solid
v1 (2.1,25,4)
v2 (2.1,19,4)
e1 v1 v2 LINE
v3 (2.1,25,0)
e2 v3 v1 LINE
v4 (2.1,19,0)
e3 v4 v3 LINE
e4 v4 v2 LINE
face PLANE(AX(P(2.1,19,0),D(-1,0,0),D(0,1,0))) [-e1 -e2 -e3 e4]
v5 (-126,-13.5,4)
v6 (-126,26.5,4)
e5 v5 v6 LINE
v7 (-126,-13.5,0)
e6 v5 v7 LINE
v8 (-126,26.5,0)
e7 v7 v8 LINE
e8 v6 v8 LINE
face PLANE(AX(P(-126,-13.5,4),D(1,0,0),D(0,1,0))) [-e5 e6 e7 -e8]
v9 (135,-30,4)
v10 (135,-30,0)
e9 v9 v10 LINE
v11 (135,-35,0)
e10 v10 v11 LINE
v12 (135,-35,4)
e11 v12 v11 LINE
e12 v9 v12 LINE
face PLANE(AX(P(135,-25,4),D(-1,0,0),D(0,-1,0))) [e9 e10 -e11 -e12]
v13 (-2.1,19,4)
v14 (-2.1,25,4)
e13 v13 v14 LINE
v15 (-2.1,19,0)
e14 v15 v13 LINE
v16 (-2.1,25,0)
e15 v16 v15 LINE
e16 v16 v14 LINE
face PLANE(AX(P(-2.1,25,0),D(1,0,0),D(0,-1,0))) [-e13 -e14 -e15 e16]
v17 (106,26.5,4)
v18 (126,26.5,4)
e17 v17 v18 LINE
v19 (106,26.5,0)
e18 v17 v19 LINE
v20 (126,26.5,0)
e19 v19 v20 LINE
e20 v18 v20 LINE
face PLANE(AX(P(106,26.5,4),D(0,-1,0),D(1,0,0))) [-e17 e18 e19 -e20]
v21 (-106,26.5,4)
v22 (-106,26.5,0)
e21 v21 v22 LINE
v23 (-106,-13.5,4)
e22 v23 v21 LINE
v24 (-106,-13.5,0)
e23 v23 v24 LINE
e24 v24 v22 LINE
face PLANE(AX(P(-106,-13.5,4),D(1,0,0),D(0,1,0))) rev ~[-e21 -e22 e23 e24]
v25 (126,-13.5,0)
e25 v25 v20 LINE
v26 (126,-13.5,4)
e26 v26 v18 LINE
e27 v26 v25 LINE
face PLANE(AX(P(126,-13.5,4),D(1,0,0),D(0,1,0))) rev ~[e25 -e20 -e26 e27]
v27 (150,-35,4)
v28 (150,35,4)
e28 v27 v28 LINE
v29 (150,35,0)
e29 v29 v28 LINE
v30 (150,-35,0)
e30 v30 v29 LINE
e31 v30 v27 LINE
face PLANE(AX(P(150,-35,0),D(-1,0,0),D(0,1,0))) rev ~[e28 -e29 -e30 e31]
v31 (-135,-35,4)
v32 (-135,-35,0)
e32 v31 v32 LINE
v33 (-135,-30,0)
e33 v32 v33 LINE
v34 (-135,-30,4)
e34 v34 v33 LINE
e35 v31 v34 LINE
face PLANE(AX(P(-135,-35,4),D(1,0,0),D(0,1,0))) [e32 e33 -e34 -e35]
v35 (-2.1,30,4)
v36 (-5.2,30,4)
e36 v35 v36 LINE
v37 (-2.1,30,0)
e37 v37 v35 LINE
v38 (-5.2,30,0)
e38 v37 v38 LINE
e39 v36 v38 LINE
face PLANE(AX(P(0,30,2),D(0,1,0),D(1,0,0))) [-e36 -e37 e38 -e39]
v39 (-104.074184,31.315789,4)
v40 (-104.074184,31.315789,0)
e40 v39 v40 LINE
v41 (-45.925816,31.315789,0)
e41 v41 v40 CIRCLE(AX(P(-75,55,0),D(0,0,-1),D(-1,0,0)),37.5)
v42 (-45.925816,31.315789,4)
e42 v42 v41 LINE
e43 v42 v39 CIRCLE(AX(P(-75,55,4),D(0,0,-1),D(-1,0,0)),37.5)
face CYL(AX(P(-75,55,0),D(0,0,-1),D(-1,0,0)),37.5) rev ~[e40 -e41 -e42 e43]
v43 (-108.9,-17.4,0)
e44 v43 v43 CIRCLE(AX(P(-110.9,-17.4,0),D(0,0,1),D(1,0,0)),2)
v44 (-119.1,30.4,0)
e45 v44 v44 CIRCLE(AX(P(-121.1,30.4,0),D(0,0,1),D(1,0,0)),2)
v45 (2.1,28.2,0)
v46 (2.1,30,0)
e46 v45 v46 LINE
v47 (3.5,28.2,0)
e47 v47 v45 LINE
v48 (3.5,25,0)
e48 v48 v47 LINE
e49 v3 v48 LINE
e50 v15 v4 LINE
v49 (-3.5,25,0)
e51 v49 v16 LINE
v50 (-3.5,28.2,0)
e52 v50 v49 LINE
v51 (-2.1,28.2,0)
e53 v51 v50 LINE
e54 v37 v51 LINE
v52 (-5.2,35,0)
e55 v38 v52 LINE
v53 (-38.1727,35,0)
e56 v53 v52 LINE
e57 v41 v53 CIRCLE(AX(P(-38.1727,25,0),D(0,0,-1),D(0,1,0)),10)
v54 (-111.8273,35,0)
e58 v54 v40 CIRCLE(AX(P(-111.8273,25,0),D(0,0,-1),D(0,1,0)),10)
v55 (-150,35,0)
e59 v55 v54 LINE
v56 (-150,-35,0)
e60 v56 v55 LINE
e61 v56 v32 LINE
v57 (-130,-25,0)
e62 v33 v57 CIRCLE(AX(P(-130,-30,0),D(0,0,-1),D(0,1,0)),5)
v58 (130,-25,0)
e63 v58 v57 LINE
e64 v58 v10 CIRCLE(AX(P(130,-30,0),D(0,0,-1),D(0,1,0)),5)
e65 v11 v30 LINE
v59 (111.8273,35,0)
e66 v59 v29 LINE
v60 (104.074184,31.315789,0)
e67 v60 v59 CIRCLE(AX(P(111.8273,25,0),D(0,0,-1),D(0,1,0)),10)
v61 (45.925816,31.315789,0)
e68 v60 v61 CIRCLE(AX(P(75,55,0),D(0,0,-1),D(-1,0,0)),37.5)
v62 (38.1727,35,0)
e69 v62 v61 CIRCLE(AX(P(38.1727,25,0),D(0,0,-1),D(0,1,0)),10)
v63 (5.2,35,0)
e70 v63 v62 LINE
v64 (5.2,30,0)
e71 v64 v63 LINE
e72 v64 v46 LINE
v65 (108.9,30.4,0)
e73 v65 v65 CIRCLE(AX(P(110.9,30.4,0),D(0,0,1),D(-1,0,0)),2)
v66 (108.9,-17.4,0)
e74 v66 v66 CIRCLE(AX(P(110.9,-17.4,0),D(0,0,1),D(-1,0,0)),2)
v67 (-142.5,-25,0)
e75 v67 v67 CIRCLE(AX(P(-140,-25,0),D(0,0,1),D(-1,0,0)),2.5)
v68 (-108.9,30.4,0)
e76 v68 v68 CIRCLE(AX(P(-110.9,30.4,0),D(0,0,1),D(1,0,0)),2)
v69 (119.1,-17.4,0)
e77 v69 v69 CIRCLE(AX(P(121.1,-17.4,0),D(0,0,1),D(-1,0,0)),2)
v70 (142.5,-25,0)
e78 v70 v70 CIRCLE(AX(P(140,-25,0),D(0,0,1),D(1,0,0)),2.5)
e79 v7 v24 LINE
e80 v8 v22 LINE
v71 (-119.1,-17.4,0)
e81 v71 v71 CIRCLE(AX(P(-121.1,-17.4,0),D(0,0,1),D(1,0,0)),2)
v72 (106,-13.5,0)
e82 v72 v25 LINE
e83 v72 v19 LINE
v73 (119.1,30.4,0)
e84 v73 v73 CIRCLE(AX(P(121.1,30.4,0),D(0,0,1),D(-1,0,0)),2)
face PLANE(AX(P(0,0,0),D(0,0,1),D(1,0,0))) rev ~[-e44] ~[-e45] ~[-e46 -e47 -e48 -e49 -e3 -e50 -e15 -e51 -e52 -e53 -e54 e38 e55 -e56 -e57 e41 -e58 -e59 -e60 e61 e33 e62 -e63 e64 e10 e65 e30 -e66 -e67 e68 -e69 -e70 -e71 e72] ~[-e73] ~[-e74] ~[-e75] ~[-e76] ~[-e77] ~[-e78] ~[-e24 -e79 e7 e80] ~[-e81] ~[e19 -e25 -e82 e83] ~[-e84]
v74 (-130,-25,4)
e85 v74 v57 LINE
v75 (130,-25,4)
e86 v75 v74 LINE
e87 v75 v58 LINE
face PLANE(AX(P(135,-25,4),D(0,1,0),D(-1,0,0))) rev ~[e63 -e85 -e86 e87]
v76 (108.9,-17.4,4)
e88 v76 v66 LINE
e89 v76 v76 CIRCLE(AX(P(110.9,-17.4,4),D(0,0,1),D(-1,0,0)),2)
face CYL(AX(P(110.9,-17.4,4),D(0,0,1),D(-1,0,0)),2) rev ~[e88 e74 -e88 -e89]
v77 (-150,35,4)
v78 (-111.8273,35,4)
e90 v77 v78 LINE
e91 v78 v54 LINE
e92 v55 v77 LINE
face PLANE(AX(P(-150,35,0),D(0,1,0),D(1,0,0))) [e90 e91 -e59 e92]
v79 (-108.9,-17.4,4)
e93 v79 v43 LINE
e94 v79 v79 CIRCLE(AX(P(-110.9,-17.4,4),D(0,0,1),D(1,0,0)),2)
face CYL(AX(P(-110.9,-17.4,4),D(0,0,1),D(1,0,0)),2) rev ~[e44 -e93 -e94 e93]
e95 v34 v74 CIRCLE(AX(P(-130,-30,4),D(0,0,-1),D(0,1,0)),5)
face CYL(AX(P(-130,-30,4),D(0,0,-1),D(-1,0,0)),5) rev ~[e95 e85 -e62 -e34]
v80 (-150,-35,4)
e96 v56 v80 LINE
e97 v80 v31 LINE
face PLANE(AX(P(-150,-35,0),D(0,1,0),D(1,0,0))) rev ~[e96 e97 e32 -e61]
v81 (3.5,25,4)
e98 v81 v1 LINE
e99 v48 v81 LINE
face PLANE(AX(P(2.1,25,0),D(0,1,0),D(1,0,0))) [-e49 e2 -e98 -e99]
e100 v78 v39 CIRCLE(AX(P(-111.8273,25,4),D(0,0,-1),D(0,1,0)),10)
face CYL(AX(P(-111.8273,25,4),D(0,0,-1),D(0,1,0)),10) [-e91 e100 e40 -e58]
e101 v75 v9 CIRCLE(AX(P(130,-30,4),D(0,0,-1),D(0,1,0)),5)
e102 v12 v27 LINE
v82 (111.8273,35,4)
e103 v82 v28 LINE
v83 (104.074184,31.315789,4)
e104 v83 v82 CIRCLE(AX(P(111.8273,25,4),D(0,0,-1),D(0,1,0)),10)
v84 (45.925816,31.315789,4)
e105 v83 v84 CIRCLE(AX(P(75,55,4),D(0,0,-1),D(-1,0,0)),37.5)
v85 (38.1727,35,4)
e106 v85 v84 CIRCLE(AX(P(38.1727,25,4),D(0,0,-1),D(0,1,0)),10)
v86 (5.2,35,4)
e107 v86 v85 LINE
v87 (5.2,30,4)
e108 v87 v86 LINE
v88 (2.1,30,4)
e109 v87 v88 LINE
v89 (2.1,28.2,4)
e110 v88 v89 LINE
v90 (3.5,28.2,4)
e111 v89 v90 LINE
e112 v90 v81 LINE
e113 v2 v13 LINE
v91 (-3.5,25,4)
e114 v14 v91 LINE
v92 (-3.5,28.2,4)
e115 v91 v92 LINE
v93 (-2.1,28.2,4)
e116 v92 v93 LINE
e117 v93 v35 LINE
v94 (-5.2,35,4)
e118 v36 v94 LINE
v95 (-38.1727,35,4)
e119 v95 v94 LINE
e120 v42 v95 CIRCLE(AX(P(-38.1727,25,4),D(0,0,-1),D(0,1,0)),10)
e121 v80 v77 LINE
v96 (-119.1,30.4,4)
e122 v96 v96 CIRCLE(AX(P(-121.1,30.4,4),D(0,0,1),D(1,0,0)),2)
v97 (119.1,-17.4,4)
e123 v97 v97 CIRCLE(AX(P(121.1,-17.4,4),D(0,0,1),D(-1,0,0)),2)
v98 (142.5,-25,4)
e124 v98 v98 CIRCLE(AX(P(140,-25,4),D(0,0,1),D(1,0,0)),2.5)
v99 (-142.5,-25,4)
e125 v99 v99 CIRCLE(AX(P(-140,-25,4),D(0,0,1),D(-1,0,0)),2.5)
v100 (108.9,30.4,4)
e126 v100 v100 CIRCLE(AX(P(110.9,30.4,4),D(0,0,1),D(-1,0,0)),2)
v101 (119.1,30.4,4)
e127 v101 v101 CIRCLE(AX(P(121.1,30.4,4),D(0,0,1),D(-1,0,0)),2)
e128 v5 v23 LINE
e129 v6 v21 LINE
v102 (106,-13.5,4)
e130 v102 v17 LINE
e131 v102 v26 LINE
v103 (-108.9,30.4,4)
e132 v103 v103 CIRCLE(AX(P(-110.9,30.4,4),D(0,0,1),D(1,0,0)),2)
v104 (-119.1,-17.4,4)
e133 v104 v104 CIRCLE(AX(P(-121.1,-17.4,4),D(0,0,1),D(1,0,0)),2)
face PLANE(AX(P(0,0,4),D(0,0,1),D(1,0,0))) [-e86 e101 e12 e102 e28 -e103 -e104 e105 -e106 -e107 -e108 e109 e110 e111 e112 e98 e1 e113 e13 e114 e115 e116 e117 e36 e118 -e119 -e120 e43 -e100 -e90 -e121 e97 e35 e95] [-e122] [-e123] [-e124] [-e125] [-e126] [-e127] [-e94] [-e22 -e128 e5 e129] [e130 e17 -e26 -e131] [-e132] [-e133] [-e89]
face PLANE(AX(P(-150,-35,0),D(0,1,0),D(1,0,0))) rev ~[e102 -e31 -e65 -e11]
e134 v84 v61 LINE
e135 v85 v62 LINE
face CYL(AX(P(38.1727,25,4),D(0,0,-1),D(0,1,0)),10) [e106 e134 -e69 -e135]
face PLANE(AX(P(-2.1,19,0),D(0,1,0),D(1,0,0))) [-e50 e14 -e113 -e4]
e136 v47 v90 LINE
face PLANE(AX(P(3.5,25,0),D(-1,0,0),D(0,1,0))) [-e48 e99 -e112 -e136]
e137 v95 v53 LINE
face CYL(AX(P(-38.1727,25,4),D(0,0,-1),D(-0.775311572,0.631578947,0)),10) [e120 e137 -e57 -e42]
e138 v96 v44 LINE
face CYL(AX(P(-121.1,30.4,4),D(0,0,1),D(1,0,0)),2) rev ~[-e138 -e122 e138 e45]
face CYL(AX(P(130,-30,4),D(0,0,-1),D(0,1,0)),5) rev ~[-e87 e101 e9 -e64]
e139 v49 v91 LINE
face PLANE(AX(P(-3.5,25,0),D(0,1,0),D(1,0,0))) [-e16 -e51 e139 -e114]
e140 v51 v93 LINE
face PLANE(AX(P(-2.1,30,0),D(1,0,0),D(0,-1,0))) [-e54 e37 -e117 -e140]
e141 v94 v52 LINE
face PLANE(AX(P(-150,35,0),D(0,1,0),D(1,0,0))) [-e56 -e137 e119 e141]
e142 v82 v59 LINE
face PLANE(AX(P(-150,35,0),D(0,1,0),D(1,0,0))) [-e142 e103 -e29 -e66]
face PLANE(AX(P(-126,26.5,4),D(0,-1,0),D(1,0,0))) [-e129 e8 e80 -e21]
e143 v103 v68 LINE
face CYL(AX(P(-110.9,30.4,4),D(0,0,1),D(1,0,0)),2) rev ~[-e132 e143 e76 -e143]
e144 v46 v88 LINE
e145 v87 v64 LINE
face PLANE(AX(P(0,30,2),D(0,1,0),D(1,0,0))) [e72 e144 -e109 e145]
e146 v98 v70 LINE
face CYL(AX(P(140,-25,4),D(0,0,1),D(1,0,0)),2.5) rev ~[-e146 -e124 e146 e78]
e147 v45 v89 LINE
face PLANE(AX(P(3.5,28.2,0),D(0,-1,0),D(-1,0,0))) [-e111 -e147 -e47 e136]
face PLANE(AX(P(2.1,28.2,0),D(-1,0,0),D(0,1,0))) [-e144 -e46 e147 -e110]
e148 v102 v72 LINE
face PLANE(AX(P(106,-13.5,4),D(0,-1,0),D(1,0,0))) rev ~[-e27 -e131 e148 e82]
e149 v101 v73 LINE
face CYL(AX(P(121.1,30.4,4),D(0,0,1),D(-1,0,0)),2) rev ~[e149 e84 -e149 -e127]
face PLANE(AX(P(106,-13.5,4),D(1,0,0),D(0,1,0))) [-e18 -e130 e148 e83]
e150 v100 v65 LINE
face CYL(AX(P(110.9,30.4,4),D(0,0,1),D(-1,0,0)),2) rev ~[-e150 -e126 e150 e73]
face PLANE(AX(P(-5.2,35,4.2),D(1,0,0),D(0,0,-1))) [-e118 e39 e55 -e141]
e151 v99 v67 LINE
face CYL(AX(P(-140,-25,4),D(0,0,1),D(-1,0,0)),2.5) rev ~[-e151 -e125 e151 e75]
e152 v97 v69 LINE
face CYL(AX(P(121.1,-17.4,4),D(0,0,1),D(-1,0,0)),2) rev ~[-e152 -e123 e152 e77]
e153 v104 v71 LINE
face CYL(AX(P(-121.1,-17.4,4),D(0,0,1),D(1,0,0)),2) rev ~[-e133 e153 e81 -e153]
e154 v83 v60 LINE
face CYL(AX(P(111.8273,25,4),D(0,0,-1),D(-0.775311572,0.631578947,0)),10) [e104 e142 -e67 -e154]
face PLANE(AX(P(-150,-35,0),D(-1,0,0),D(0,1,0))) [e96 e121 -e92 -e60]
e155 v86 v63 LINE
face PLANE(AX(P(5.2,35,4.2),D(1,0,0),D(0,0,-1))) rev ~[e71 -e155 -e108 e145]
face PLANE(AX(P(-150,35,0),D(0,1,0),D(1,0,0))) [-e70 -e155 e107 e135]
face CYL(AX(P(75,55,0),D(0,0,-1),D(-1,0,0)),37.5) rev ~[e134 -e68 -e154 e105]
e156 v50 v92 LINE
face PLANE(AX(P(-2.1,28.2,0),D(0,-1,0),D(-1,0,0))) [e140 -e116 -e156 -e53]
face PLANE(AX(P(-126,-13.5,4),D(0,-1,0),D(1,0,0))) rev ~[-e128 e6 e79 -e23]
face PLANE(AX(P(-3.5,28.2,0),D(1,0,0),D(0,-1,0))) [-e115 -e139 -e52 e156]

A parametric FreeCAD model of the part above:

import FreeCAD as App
import Part
import Sketcher

V = App.Vector


def edges_at(feature, points):
    """Names of the edges that pass closest to the given points."""
    edges = feature.Shape.Edges
    near = lambda p: min(range(len(edges)), key=lambda i: edges[i].distToShape(Part.Vertex(*p))[0])
    return sorted({f"Edge{near(p) + 1}" for p in points})


def add_polygon(sketch, points):
    """Adds a closed chain of lines whose ends are joined by coincident constraints."""
    first, n = sketch.GeometryCount, len(points)
    for a, b in zip(points, points[1:] + points[:1]):
        sketch.addGeometry(Part.LineSegment(App.Vector(*a, 0), App.Vector(*b, 0)), False)
    for i in range(n):
        sketch.addConstraint(Sketcher.Constraint("Coincident", first + i, 2, first + (i + 1) % n, 1))

doc = App.newDocument("Part")
body = doc.addObject("PartDesign::Body", "Body")

sketch1 = body.newObject("Sketcher::SketchObject", "Sketch")
sketch1.AttachmentSupport = (doc.getObject("XY_Plane"), [""])
sketch1.MapMode = "FlatFace"
add_polygon(sketch1, [(-150, 35), (-150, -35), (150, -35), (150, 35)])
sketch1.addConstraint([
    Sketcher.Constraint("Vertical", 0),
    Sketcher.Constraint("Horizontal", 1),
    Sketcher.Constraint("Vertical", 2),
    Sketcher.Constraint("Horizontal", 3),
    Sketcher.Constraint("Symmetric", 0, 2, 2, 2, -1, 1),
    Sketcher.Constraint("DistanceX", 1, 1, 1, 2, 300.0),
    Sketcher.Constraint("DistanceY", 0, 2, 0, 1, 70.0),
])
pad1 = body.newObject("PartDesign::Pad", "Pad")
pad1.Profile = sketch1
pad1.Length = 4

sketch2 = body.newObject("Sketcher::SketchObject", "Sketch001")
sketch2.AttachmentSupport = (doc.getObject("XY_Plane"), [""])
sketch2.MapMode = "FlatFace"
sketch2.AttachmentOffset = App.Placement(V(0, 0, 4), App.Rotation())
sketch2.addGeometry(Part.Circle(V(140, -25, 0), V(0, 0, 1), 2.5), False)
sketch2.addGeometry(Part.Circle(V(-140, -25, 0), V(0, 0, 1), 2.5), False)
add_polygon(sketch2, [(135, -25), (-135, -25), (-135, -35), (135, -35)])
sketch2.addConstraint([
    Sketcher.Constraint("Horizontal", 2),
    Sketcher.Constraint("Vertical", 3),
    Sketcher.Constraint("Horizontal", 4),
    Sketcher.Constraint("Vertical", 5),
    Sketcher.Constraint("Equal", 0, 1),
    Sketcher.Constraint("Symmetric", 0, 3, 1, 3, -2),
    Sketcher.Constraint("Horizontal", 1, 3, 2, 2),
    Sketcher.Constraint("Diameter", 0, 5.0),
    Sketcher.Constraint("DistanceX", 2, 2, 2, 1, 270.0),
    Sketcher.Constraint("DistanceY", 3, 2, 3, 1, 10.0),
    Sketcher.Constraint("DistanceX", -1, 1, 0, 3, 140.0),
    Sketcher.Constraint("DistanceY", 0, 3, -1, 1, 25.0),
    Sketcher.Constraint("DistanceX", 2, 2, -1, 1, 135.0),
])
pocket1 = body.newObject("PartDesign::Pocket", "Pocket")
pocket1.Profile = sketch2
pocket1.Type = "ThroughAll"

sketch3 = body.newObject("Sketcher::SketchObject", "Sketch002")
sketch3.AttachmentSupport = (doc.getObject("XY_Plane"), [""])
sketch3.MapMode = "FlatFace"
sketch3.addGeometry([
    Part.Circle(V(-75, 55, 0), V(0, 0, 1), 37.5),
    Part.Circle(V(75, 55, 0), V(0, 0, 1), 37.5),
], False)
sketch3.addConstraint([
    Sketcher.Constraint("Equal", 0, 1),
    Sketcher.Constraint("Symmetric", 0, 3, 1, 3, -2),
    Sketcher.Constraint("Diameter", 0, 75.0),
    Sketcher.Constraint("DistanceX", 0, 3, -1, 1, 75.0),
    Sketcher.Constraint("DistanceY", -1, 1, 0, 3, 55.0),
])
pocket2 = body.newObject("PartDesign::Pocket", "Pocket001")
pocket2.Profile = sketch3
pocket2.Type = "ThroughAll"
pocket2.Reversed = True
doc.recompute()

fillet = body.newObject("PartDesign::Fillet", "Fillet")
fillet.Base = (pocket2, edges_at(pocket2, [
    (-106.721, 35, 2),
    (-43.279, 35, 2),
    (43.279, 35, 2),
    (106.721, 35, 2),
]))
fillet.Radius = 10

sketch4 = body.newObject("Sketcher::SketchObject", "Sketch003")
sketch4.AttachmentSupport = (doc.getObject("XY_Plane"), [""])
sketch4.MapMode = "FlatFace"
sketch4.AttachmentOffset = App.Placement(V(0, 0, 4), App.Rotation())
sketch4.addGeometry(Part.Circle(V(-110.9, 30.4, 0), V(0, 0, 1), 2), False)
sketch4.addGeometry(Part.Circle(V(-121.1, 30.4, 0), V(0, 0, 1), 2), False)
sketch4.addGeometry(Part.Circle(V(-110.9, -17.4, 0), V(0, 0, 1), 2), False)
sketch4.addGeometry(Part.Circle(V(-121.1, -17.4, 0), V(0, 0, 1), 2), False)
sketch4.addGeometry(Part.Circle(V(121.1, -17.4, 0), V(0, 0, 1), 2), False)
sketch4.addGeometry(Part.Circle(V(110.9, -17.4, 0), V(0, 0, 1), 2), False)
sketch4.addGeometry(Part.Circle(V(121.1, 30.4, 0), V(0, 0, 1), 2), False)
sketch4.addGeometry(Part.Circle(V(110.9, 30.4, 0), V(0, 0, 1), 2), False)
add_polygon(sketch4, [(-126, 26.5), (-126, -13.5), (-106, -13.5), (-106, 26.5)])
add_polygon(sketch4, [(106, 26.5), (106, -13.5), (126, -13.5), (126, 26.5)])
sketch4.addConstraint([
    Sketcher.Constraint("Vertical", 8),
    Sketcher.Constraint("Horizontal", 9),
    Sketcher.Constraint("Vertical", 10),
    Sketcher.Constraint("Horizontal", 11),
    Sketcher.Constraint("Vertical", 12),
    Sketcher.Constraint("Horizontal", 13),
    Sketcher.Constraint("Vertical", 14),
    Sketcher.Constraint("Horizontal", 15),
    Sketcher.Constraint("Equal", 0, 1),
    Sketcher.Constraint("Equal", 1, 2),
    Sketcher.Constraint("Equal", 2, 3),
    Sketcher.Constraint("Equal", 3, 4),
    Sketcher.Constraint("Equal", 4, 5),
    Sketcher.Constraint("Equal", 5, 6),
    Sketcher.Constraint("Equal", 6, 7),
    Sketcher.Constraint("Symmetric", 3, 3, 4, 3, -2),
    Sketcher.Constraint("Symmetric", 2, 3, 5, 3, -2),
    Sketcher.Constraint("Symmetric", 1, 3, 6, 3, -2),
    Sketcher.Constraint("Symmetric", 0, 3, 7, 3, -2),
    Sketcher.Constraint("Symmetric", 9, 2, 12, 2, -2),
    Sketcher.Constraint("Symmetric", 11, 2, 14, 2, -2),
    Sketcher.Constraint("Horizontal", 0, 3, 1, 3),
    Sketcher.Constraint("Horizontal", 2, 3, 3, 3),
    Sketcher.Constraint("Vertical", 0, 3, 2, 3),
    Sketcher.Constraint("Vertical", 1, 3, 3, 3),
    Sketcher.Constraint("Diameter", 0, 4.0),
    Sketcher.Constraint("DistanceX", 9, 1, 9, 2, 20.0),
    Sketcher.Constraint("DistanceY", 8, 2, 8, 1, 40.0),
    Sketcher.Constraint("DistanceX", 8, 2, -1, 1, 126.0),
    Sketcher.Constraint("DistanceX", 2, 3, 4, 3, 232.0),
    Sketcher.Constraint("DistanceX", 0, 3, -1, 1, 110.9),
    Sketcher.Constraint("DistanceY", -1, 1, 0, 3, 30.4),
    Sketcher.Constraint("DistanceY", 2, 3, -1, 1, 17.4),
    Sketcher.Constraint("DistanceY", 8, 2, -1, 1, 13.5),
])
pocket3 = body.newObject("PartDesign::Pocket", "Pocket002")
pocket3.Profile = sketch4
pocket3.Type = "ThroughAll"
doc.recompute()

fillet2 = body.newObject("PartDesign::Fillet", "Fillet001")
fillet2.Base = (pocket3, edges_at(pocket3, [(-135, -25, 2), (135, -25, 2)]))
fillet2.Radius = 5

sketch5 = body.newObject("Sketcher::SketchObject", "Sketch004")
sketch5.AttachmentSupport = (doc.getObject("XZ_Plane"), [""])
sketch5.MapMode = "FlatFace"
sketch5.AttachmentOffset = App.Placement(V(0, 0, -35), App.Rotation())
add_polygon(sketch5, [(-5.2, -0.2), (-5.2, 4.2), (5.2, 4.2), (5.2, -0.2)])
sketch5.addConstraint([
    Sketcher.Constraint("Vertical", 0),
    Sketcher.Constraint("Horizontal", 1),
    Sketcher.Constraint("Vertical", 2),
    Sketcher.Constraint("Horizontal", 3),
    Sketcher.Constraint("DistanceX", 1, 1, 1, 2, 10.4),
    Sketcher.Constraint("DistanceY", 0, 1, 0, 2, 4.4),
    Sketcher.Constraint("DistanceX", 0, 2, -1, 1, 5.2),
    Sketcher.Constraint("DistanceY", -1, 1, 0, 2, 4.2),
])
pocket4 = body.newObject("PartDesign::Pocket", "Pocket003")
pocket4.Profile = sketch5
pocket4.Length = 5
pocket4.Reversed = True

sketch6 = body.newObject("Sketcher::SketchObject", "Sketch005")
sketch6.AttachmentSupport = (doc.getObject("XY_Plane"), [""])
sketch6.MapMode = "FlatFace"
add_polygon(sketch6, [(-2.1, 30), (2.1, 30), (2.1, 28.2), (3.5, 28.2), (3.5, 25), (2.1, 25), (2.1, 19), (-2.1, 19), (-2.1, 25), (-3.5, 25), (-3.5, 28.2), (-2.1, 28.2)])
sketch6.addConstraint([
    Sketcher.Constraint("Horizontal", 0),
    Sketcher.Constraint("Vertical", 1),
    Sketcher.Constraint("Horizontal", 2),
    Sketcher.Constraint("Vertical", 3),
    Sketcher.Constraint("Horizontal", 4),
    Sketcher.Constraint("Vertical", 5),
    Sketcher.Constraint("Horizontal", 6),
    Sketcher.Constraint("Vertical", 7),
    Sketcher.Constraint("Horizontal", 8),
    Sketcher.Constraint("Vertical", 9),
    Sketcher.Constraint("Horizontal", 10),
    Sketcher.Constraint("Vertical", 11),
    Sketcher.Constraint("Symmetric", 4, 2, 7, 2, -2),
    Sketcher.Constraint("Symmetric", 2, 2, 9, 2, -2),
    Sketcher.Constraint("Vertical", 1, 2, 4, 2),
    Sketcher.Constraint("Vertical", 7, 2, 10, 2),
    Sketcher.Constraint("DistanceY", 5, 2, 5, 1, 6.0),
    Sketcher.Constraint("DistanceX", 0, 1, 0, 2, 4.2),
    Sketcher.Constraint("DistanceX", 2, 1, 2, 2, 1.4),
    Sketcher.Constraint("DistanceY", 1, 2, 1, 1, 1.8),
    Sketcher.Constraint("DistanceY", 3, 2, 3, 1, 3.2),
    Sketcher.Constraint("DistanceY", -1, 1, 0, 2, 30.0),
])
pocket5 = body.newObject("PartDesign::Pocket", "Pocket004")
pocket5.Profile = sketch6
pocket5.Type = "ThroughAll"
pocket5.Reversed = True

doc.recompute()
